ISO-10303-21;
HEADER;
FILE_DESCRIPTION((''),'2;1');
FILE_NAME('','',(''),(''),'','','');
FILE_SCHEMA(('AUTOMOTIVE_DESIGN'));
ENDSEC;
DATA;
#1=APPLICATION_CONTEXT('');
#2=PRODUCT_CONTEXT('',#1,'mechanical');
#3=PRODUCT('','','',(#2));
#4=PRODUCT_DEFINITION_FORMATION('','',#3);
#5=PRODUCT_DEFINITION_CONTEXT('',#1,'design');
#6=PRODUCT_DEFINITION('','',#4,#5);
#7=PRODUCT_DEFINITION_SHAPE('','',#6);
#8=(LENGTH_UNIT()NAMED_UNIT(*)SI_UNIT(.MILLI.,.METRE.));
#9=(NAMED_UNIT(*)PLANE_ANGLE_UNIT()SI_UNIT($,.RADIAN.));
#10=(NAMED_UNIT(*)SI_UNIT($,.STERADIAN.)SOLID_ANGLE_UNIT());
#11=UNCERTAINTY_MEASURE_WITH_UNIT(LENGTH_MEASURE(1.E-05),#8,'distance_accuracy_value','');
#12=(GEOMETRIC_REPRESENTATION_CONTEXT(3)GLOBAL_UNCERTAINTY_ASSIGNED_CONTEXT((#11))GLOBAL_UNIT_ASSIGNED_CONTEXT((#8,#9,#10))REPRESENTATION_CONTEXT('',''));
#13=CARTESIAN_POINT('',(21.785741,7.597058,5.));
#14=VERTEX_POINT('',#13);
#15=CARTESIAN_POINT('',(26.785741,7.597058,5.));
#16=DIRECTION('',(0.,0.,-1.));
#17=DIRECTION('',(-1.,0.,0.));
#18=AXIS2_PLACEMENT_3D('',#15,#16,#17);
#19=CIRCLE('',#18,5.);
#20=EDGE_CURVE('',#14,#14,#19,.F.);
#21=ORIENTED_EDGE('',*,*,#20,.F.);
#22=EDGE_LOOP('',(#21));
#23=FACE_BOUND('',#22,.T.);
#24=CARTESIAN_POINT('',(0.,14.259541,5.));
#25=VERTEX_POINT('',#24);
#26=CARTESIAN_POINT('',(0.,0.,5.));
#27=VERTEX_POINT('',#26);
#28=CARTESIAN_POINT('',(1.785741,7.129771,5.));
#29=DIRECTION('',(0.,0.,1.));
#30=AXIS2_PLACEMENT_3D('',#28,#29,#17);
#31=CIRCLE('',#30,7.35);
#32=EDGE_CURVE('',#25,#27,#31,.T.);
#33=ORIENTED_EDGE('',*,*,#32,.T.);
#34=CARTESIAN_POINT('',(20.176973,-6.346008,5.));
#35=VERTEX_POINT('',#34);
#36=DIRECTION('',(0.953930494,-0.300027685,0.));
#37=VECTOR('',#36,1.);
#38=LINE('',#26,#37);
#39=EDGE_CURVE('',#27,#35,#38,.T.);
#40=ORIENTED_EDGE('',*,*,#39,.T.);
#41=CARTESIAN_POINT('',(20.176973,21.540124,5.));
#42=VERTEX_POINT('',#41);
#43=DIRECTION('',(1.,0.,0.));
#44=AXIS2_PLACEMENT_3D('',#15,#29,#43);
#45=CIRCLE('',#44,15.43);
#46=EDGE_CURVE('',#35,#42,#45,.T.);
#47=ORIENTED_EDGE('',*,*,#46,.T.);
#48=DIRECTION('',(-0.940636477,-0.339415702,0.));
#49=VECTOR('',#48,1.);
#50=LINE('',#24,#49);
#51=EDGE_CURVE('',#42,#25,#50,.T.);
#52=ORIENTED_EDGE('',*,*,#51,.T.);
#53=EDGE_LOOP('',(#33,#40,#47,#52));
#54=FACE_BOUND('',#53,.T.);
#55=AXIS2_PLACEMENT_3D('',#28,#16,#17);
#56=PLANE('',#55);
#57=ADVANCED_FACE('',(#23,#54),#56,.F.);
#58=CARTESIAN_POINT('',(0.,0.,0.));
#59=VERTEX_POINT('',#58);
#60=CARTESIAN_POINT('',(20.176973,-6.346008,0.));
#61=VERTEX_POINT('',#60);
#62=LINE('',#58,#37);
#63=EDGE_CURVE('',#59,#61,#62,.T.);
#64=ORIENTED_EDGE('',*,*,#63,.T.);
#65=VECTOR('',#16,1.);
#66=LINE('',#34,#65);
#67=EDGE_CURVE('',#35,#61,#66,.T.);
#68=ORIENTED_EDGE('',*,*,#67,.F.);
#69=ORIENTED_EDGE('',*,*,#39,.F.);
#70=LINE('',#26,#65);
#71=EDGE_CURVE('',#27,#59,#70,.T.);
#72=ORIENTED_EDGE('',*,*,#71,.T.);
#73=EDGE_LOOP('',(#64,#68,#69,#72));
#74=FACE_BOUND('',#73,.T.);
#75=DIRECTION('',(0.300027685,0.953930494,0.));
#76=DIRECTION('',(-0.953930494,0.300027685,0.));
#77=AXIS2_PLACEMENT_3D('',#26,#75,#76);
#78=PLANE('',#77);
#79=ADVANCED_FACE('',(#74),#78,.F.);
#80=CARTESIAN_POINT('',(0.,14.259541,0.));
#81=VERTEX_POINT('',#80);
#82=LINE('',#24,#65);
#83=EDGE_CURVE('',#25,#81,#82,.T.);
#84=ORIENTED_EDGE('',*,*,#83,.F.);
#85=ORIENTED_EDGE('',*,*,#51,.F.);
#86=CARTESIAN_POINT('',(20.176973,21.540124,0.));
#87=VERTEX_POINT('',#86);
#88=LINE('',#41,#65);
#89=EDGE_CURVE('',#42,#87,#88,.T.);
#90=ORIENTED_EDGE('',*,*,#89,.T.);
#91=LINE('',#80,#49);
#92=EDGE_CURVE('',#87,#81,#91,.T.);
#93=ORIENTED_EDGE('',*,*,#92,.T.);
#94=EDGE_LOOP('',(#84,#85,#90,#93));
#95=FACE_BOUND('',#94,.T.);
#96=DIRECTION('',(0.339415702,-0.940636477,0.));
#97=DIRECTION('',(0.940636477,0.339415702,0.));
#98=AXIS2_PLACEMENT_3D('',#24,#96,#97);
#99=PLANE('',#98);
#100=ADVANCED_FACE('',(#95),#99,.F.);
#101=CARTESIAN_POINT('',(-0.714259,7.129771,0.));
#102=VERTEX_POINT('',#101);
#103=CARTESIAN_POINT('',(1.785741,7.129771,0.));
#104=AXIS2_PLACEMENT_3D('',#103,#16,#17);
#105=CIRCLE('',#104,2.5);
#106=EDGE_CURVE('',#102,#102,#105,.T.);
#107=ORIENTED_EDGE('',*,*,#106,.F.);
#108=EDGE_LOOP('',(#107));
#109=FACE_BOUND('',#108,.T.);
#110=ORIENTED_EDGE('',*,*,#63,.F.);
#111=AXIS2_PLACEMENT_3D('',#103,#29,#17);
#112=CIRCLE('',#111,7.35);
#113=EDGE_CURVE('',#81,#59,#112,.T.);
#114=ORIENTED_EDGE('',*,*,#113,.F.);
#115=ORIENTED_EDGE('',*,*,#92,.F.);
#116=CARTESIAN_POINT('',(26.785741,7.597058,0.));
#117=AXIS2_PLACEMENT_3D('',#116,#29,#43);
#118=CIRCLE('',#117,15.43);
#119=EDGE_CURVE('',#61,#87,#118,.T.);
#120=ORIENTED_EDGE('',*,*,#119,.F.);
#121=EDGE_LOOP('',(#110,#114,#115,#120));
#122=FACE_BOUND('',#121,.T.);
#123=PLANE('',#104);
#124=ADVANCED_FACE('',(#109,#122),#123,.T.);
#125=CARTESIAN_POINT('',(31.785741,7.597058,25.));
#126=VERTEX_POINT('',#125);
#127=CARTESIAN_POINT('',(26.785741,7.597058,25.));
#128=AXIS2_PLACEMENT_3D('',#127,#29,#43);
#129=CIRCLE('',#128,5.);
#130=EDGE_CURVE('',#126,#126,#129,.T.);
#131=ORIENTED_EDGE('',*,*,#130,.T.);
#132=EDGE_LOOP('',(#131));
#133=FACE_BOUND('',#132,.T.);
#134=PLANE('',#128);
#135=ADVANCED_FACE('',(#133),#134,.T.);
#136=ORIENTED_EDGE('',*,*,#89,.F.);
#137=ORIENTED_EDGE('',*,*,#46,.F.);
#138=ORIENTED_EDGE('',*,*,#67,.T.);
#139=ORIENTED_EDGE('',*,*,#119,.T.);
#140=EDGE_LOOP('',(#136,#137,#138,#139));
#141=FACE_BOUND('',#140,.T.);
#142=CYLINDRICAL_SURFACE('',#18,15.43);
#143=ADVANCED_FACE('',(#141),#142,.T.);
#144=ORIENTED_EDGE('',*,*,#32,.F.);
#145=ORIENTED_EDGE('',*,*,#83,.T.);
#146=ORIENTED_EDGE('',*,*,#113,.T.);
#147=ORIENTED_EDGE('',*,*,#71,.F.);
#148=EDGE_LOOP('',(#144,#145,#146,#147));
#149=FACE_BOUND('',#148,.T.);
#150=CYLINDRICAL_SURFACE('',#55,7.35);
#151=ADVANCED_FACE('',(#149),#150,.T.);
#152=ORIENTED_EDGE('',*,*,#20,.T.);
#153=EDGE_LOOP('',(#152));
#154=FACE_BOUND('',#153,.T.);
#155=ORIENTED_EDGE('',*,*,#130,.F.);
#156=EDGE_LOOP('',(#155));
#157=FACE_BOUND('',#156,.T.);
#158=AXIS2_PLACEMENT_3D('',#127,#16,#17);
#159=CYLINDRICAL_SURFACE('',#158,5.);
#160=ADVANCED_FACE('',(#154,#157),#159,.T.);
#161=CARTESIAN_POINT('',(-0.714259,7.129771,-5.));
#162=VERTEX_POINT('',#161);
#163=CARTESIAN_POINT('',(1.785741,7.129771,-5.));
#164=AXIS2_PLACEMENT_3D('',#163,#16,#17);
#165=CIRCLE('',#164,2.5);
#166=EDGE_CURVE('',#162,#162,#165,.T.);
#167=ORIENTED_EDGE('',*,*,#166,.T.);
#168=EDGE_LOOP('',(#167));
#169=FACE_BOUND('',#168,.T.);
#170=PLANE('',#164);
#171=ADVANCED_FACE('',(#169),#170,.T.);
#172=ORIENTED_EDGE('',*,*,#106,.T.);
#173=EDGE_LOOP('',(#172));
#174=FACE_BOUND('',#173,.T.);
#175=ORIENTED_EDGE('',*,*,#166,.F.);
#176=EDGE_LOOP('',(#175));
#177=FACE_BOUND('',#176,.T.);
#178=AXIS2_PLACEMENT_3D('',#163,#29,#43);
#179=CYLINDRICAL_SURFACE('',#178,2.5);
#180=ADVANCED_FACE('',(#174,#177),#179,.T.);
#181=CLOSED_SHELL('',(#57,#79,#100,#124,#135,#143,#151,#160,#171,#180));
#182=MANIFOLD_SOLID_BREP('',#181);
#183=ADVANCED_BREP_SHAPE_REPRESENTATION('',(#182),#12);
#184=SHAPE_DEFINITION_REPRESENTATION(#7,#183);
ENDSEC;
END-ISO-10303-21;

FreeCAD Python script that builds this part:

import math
import FreeCAD as App
import Part
import Sketcher

doc = App.newDocument("Part")
body = doc.addObject("PartDesign::Body", "Body")

sketch1 = doc.addObject("Sketcher::SketchObject", "Sketch")
body.addObject(sketch1)
sketch1.AttachmentSupport = (doc.XY_Plane, [""])
sketch1.MapMode = "FlatFace"
sketch1.addGeometry([
    Part.LineSegment(App.Vector(20, 22, 0), App.Vector(0, 14, 0)),
    Part.ArcOfCircle(Part.Circle(App.Vector(2, 7, 0), App.Vector(0, 0, 1), 7), math.radians(104), math.radians(256)),
    Part.LineSegment(App.Vector(0, 0, 0), App.Vector(20, -6, 0)),
    Part.ArcOfCircle(Part.Circle(App.Vector(27, 8, 0), App.Vector(0, 0, 1), 15), math.radians(-115), math.radians(115)),
], False)
sketch1.addConstraint([
    Sketcher.Constraint("Coincident", 0, 2, 1, 1),
    Sketcher.Constraint("Coincident", 1, 2, 2, 1),
    Sketcher.Constraint("Coincident", 2, 2, 3, 1),
    Sketcher.Constraint("Coincident", 3, 2, 0, 1),
    Sketcher.Constraint("Coincident", 1, 2, -1, 1),
    Sketcher.Constraint("PointOnObject", 0, 2, -2),
    Sketcher.Constraint("Vertical", 2, 2, 3, 2),
    Sketcher.Constraint("Radius", 1, 7.35),
    Sketcher.Constraint("Radius", 3, 15.43),
    Sketcher.Constraint("DistanceX", 1, 3, 3, 3, 25.0),
    Sketcher.Constraint("Distance", 0, 21.450341),
    Sketcher.Constraint("DistanceX", -1, 1, 1, 3, 1.785741),
    Sketcher.Constraint("DistanceX", 2, 2, 3, 3, 6.608768),
])
pad1 = doc.addObject("PartDesign::Pad", "Pad")
body.addObject(pad1)
pad1.Profile = sketch1
pad1.Length = 5

sketch2 = doc.addObject("Sketcher::SketchObject", "Sketch001")
body.addObject(sketch2)
sketch2.AttachmentSupport = (doc.XY_Plane, [""])
sketch2.MapMode = "FlatFace"
sketch2.AttachmentOffset = App.Placement(App.Vector(0, 0, 5), App.Rotation())
sketch2.addGeometry(Part.Circle(App.Vector(27, 8, 0), App.Vector(0, 0, 1), 5), False)
sketch2.addConstraint([
    Sketcher.Constraint("Diameter", 0, 10.0),
    Sketcher.Constraint("DistanceX", -1, 1, 0, 3, 26.785741),
    Sketcher.Constraint("DistanceY", -1, 1, 0, 3, 7.597058),
])
pad2 = doc.addObject("PartDesign::Pad", "Pad001")
body.addObject(pad2)
pad2.Profile = sketch2
pad2.Length = 20

sketch3 = doc.addObject("Sketcher::SketchObject", "Sketch002")
body.addObject(sketch3)
sketch3.AttachmentSupport = (doc.XY_Plane, [""])
sketch3.MapMode = "FlatFace"
sketch3.addGeometry(Part.Circle(App.Vector(1.8, 7.1, 0), App.Vector(0, 0, 1), 2.5), False)
sketch3.addConstraint([
    Sketcher.Constraint("Diameter", 0, 5.0),
    Sketcher.Constraint("DistanceX", -1, 1, 0, 3, 1.785741),
    Sketcher.Constraint("DistanceY", -1, 1, 0, 3, 7.129771),
])
pad3 = doc.addObject("PartDesign::Pad", "Pad002")
body.addObject(pad3)
pad3.Profile = sketch3
pad3.Length = 5
pad3.Reversed = True

doc.recompute()
